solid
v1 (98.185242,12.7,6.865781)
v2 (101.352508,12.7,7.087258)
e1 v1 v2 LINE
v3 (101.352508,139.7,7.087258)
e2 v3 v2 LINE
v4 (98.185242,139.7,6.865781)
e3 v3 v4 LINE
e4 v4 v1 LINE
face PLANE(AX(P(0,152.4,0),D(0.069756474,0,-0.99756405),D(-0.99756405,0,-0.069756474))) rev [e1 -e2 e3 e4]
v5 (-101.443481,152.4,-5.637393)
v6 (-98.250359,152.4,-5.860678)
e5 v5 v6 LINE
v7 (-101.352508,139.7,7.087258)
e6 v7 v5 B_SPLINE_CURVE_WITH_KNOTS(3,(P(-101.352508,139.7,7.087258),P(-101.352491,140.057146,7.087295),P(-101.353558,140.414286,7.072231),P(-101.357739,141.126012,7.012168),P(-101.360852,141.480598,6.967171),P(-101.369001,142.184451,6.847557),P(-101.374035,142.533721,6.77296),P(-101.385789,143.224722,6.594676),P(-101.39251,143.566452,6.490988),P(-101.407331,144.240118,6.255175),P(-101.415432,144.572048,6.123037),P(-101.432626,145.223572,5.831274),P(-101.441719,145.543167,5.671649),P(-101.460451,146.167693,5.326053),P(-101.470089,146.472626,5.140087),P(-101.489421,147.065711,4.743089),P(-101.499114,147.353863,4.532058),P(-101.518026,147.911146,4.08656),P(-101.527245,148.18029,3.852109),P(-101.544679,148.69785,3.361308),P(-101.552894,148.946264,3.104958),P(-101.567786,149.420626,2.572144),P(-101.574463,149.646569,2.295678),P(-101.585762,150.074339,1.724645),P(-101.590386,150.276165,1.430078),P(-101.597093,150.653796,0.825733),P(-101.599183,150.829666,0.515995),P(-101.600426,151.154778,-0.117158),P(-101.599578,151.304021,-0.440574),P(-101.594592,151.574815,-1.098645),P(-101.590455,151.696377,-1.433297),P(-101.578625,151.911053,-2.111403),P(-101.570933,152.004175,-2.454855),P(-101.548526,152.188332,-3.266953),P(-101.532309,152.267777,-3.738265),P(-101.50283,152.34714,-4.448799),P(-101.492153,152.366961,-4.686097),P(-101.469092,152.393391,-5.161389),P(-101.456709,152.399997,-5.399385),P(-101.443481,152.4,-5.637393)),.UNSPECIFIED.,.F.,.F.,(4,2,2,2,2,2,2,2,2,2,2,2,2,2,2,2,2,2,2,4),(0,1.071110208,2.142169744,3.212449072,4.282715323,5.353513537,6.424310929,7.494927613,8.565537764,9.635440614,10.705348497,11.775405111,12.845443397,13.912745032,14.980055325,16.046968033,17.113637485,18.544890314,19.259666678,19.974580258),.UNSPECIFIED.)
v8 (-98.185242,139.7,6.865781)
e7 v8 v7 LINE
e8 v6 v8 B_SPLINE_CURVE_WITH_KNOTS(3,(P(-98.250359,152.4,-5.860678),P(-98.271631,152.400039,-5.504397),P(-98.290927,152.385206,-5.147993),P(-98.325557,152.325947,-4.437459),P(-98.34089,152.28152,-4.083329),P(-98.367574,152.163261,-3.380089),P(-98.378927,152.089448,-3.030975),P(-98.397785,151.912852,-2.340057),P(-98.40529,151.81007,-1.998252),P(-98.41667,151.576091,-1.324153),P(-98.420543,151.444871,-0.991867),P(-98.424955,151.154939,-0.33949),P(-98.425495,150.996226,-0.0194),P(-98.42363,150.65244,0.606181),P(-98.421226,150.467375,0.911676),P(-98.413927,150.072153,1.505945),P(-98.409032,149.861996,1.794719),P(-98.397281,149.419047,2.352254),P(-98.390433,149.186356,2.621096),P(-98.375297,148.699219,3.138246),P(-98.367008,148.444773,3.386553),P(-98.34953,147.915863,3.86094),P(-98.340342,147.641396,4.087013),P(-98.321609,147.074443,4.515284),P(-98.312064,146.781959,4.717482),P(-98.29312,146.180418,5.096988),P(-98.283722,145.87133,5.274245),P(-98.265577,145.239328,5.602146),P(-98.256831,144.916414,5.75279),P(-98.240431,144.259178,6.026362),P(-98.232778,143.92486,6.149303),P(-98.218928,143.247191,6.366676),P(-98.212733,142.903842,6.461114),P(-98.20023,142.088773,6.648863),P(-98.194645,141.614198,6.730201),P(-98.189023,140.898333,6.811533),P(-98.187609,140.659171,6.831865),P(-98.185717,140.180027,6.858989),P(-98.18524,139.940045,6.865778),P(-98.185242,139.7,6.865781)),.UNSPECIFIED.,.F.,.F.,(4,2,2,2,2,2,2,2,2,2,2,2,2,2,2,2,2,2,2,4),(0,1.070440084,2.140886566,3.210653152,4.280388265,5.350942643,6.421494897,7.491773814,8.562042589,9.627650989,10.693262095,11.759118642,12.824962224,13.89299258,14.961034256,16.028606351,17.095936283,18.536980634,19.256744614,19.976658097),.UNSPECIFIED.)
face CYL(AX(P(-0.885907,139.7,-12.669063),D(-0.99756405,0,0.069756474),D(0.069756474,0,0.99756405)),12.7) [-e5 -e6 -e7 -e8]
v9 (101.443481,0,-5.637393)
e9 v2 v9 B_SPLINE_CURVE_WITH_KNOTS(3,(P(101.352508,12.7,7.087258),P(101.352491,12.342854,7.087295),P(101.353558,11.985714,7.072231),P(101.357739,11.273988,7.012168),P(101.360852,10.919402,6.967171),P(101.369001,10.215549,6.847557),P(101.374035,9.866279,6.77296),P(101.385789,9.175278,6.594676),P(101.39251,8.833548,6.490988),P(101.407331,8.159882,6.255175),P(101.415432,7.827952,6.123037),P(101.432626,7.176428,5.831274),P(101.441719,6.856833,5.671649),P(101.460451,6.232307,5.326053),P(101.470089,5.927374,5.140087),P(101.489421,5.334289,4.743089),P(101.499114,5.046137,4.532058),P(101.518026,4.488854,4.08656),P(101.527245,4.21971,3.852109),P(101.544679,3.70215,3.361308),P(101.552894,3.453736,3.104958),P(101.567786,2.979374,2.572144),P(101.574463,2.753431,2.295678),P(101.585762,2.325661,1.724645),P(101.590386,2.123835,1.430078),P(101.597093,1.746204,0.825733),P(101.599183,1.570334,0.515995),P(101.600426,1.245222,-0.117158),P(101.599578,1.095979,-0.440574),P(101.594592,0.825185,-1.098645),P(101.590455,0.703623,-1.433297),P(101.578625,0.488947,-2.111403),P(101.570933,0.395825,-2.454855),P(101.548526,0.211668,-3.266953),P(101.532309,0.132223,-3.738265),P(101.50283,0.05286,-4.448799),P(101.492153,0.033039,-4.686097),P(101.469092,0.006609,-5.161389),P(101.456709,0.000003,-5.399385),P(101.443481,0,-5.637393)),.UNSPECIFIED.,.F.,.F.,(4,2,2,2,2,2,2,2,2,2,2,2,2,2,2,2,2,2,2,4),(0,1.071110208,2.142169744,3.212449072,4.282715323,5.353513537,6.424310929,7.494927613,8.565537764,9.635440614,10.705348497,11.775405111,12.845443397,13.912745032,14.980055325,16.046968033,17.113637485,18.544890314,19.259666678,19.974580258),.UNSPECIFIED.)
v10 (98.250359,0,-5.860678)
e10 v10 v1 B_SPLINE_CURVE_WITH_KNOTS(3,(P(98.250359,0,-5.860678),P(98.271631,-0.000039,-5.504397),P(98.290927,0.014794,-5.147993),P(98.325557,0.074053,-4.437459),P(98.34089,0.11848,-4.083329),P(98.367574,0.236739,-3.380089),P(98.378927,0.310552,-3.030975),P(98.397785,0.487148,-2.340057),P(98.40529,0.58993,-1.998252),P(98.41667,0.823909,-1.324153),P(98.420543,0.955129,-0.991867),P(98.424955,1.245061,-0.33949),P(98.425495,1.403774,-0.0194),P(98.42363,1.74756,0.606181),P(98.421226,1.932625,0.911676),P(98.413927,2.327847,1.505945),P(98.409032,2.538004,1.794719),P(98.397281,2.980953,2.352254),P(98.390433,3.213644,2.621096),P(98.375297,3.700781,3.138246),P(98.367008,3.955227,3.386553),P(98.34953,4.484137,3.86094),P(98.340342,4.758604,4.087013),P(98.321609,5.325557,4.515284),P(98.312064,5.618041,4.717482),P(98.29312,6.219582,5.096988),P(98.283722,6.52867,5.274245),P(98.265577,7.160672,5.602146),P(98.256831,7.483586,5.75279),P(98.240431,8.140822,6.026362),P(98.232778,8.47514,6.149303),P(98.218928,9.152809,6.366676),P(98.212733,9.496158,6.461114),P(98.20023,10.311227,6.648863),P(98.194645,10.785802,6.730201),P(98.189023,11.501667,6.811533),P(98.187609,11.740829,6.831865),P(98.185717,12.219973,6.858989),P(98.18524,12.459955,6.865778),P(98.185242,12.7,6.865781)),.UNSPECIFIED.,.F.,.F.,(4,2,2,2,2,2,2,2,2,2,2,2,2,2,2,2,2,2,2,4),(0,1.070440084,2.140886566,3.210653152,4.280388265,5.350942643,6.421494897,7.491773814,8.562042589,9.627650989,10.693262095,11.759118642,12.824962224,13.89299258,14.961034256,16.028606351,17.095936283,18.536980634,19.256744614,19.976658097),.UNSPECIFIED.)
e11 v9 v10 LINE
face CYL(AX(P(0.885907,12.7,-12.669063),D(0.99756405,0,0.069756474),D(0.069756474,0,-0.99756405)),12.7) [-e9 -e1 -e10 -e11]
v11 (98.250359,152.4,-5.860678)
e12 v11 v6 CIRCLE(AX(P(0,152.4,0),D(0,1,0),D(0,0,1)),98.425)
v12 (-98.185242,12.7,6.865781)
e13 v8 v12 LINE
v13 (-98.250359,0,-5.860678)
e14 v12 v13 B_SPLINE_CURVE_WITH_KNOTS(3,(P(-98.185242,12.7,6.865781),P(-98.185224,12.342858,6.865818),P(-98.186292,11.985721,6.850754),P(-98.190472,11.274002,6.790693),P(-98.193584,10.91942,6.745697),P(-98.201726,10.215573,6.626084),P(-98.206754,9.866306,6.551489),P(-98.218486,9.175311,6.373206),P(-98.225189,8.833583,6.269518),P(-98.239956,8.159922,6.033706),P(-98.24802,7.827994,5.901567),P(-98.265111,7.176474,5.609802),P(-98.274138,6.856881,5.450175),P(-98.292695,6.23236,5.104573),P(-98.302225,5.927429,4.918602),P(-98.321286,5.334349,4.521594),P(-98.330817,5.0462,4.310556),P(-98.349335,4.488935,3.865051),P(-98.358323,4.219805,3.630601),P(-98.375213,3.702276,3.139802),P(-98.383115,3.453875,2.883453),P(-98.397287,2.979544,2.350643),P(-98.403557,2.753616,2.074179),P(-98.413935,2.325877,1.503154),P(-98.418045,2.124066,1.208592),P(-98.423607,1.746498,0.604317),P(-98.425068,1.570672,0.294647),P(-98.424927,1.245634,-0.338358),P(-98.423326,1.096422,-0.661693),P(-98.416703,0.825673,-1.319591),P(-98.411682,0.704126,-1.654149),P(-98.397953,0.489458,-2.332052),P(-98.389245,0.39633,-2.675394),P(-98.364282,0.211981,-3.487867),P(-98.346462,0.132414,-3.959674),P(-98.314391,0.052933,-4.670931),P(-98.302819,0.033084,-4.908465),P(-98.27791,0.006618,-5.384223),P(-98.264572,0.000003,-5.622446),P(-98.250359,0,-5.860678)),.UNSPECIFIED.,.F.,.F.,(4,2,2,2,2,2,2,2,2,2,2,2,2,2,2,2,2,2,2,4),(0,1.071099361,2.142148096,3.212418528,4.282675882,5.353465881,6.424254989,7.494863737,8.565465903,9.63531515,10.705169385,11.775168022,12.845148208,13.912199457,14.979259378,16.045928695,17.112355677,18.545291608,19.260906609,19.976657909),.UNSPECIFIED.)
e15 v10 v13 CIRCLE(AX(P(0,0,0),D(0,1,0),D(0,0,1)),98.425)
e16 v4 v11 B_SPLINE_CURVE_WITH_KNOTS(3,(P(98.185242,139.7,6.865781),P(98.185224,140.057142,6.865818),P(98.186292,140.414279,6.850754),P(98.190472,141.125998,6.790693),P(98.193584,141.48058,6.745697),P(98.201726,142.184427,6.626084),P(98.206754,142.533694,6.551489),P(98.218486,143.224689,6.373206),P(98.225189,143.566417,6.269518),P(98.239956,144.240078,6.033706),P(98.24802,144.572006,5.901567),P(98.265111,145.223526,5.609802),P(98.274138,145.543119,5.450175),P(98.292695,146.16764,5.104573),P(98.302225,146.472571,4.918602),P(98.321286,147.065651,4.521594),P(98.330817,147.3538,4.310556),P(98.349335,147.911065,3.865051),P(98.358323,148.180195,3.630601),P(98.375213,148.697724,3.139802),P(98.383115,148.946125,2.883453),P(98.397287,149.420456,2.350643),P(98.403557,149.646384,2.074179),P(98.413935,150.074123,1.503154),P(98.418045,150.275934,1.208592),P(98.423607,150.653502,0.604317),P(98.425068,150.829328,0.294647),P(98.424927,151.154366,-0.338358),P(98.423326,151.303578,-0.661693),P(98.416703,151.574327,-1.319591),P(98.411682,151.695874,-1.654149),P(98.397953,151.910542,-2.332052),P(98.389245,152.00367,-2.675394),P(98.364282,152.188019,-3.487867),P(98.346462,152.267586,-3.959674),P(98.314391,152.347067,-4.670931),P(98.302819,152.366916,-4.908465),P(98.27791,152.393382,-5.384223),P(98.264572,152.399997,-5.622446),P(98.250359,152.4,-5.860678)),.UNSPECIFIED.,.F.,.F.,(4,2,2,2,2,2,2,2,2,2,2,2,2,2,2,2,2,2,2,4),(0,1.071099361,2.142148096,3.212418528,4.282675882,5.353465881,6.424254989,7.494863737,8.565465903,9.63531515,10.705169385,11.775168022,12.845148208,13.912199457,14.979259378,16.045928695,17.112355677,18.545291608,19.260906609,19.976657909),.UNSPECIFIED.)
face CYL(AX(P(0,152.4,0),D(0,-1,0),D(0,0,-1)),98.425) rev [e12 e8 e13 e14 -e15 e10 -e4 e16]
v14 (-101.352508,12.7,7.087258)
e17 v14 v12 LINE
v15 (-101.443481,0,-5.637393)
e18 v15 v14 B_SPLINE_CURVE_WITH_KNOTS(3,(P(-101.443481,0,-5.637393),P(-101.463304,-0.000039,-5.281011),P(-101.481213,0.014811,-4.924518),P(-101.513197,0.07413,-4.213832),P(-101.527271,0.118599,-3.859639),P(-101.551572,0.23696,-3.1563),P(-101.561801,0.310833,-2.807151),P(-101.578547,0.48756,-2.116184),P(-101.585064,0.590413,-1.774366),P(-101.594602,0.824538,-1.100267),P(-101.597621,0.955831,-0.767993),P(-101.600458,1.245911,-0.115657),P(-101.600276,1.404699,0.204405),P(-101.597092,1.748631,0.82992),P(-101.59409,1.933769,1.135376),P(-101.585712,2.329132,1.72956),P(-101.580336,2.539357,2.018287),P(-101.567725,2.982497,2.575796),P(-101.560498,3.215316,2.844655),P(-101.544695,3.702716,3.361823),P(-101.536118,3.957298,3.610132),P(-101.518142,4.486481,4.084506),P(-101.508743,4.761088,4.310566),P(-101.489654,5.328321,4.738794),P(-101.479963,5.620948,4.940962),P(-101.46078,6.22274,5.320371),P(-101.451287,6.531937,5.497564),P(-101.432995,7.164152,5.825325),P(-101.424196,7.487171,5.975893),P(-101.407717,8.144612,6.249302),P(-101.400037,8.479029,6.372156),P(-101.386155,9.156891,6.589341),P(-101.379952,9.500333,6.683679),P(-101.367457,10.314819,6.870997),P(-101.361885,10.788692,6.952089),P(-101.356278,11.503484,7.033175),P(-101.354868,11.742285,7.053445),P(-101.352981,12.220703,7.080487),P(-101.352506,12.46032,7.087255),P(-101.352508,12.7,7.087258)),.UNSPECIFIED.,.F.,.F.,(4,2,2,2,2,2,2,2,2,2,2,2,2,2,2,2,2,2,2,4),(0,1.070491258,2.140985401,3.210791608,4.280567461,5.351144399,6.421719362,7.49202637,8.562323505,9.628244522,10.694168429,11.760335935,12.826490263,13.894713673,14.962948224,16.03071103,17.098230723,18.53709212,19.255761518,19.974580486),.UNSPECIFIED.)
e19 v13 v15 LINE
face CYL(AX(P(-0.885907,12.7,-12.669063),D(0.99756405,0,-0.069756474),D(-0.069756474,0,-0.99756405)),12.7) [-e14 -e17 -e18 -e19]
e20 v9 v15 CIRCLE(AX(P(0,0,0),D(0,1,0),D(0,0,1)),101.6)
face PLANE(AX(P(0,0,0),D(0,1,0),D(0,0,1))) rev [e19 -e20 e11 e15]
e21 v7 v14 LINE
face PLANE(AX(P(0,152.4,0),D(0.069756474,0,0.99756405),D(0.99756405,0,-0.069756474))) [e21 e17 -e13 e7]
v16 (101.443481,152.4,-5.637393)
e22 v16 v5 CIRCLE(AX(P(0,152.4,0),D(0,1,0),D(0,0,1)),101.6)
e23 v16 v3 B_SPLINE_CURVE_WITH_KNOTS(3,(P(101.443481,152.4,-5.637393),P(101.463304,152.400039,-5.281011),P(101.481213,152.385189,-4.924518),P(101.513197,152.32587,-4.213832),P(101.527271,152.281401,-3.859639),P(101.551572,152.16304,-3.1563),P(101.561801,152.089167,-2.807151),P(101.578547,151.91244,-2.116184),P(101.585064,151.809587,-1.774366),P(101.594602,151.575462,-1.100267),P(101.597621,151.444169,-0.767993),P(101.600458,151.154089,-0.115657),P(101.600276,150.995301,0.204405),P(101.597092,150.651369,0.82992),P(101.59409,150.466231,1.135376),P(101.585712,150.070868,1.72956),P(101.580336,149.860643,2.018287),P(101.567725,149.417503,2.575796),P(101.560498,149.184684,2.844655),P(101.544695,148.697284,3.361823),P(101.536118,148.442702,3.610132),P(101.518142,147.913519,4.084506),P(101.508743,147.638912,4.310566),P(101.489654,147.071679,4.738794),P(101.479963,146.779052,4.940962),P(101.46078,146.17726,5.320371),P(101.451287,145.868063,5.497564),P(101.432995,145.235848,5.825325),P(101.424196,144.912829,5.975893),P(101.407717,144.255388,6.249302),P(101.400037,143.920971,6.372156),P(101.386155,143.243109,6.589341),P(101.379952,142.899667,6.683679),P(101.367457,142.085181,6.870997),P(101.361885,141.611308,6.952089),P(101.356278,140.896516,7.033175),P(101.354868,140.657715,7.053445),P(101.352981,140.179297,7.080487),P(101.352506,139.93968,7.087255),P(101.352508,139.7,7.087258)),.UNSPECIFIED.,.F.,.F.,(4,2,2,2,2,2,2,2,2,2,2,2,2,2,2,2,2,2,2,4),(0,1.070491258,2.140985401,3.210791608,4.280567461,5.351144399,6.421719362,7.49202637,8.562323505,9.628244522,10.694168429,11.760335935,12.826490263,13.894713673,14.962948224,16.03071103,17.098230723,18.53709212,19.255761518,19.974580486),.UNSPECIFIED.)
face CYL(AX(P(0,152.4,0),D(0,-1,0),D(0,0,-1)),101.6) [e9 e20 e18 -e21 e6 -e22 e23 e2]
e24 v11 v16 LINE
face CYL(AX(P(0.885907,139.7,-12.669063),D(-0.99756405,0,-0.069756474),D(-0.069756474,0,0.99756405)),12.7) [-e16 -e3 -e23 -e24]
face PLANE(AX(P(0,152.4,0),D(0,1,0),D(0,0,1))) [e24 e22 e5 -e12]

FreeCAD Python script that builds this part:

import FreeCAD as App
import Part
import Sketcher
from FreeCAD import Vector
Q = App.Units.Quantity


def edges_at(feature, points):
    """Names of the edges that pass closest to the given points."""
    edges = feature.Shape.Edges
    near = lambda p: min(range(len(edges)), key=lambda i: edges[i].distToShape(Part.Vertex(*p))[0])
    return sorted({f"Edge{near(p) + 1}" for p in points})

doc = App.newDocument("Part")
body = doc.addObject("PartDesign::Body", "Body")

# Sketch on XZ plane
sketch1 = body.newObject("Sketcher::SketchObject", "Sketch")
sketch1.AttachmentSupport = (doc.getObject("XZ_Plane"), [""])
sketch1.MapMode = "FlatFace"
sketch1.addGeometry(Part.Circle(Vector(0, 0, 0), Vector(0, 0, 1), 101.6), False)
sketch1.addGeometry(Part.Circle(Vector(0, 0, 0), Vector(0, 0, 1), 98.425), False)
sketch1.addConstraint(Sketcher.Constraint("Coincident", 0, 3, -1, 1))
sketch1.addConstraint(Sketcher.Constraint("Coincident", 1, 3, -1, 1))
sketch1.addConstraint(Sketcher.Constraint("Diameter", 0, Q("8 in")))
sketch1.addConstraint(Sketcher.Constraint("Diameter", 1, Q("7.75 in")))
pad1 = body.newObject("PartDesign::Pad", "Pad")
pad1.Profile = sketch1
pad1.Length = Q("6 in")
pad1.Reversed = True

# Sketch on XZ plane
sketch2 = body.newObject("Sketcher::SketchObject", "Sketch001")
sketch2.AttachmentSupport = (doc.getObject("XZ_Plane"), [""])
sketch2.MapMode = "FlatFace"
sketch2.addGeometry(Part.LineSegment(Vector(570.65257, 39.903915, 0), Vector(101.352508, 7.087258, 0)), False)
sketch2.addGeometry(Part.LineSegment(Vector(101.352508, 7.087258, 0), Vector(0, 0, 0)), False)
sketch2.addGeometry(Part.LineSegment(Vector(0, 0, 0), Vector(-101.352508, 7.087258, 0)), False)
sketch2.addGeometry(Part.LineSegment(Vector(-101.352508, 7.087258, 0), Vector(-570.65257, 39.903915, 0)), False)
sketch2.addGeometry(Part.LineSegment(Vector(-570.65257, 39.903915, 0), Vector(-570.65257, 980.796007, 0)), False)
sketch2.addGeometry(Part.LineSegment(Vector(-570.65257, 980.796007, 0), Vector(570.65257, 980.796007, 0)), False)
sketch2.addGeometry(Part.LineSegment(Vector(570.65257, 980.796007, 0), Vector(570.65257, 39.903915, 0)), False)
sketch2.addConstraint(Sketcher.Constraint("Coincident", 0, 2, 1, 1))
sketch2.addConstraint(Sketcher.Constraint("Coincident", 1, 2, 2, 1))
sketch2.addConstraint(Sketcher.Constraint("Coincident", 2, 2, 3, 1))
sketch2.addConstraint(Sketcher.Constraint("Coincident", 3, 2, 4, 1))
sketch2.addConstraint(Sketcher.Constraint("Coincident", 4, 2, 5, 1))
sketch2.addConstraint(Sketcher.Constraint("Coincident", 5, 2, 6, 1))
sketch2.addConstraint(Sketcher.Constraint("Coincident", 6, 2, 0, 1))
sketch2.addConstraint(Sketcher.Constraint("Vertical", 4))
sketch2.addConstraint(Sketcher.Constraint("Horizontal", 5))
sketch2.addConstraint(Sketcher.Constraint("Vertical", 6))
sketch2.addConstraint(Sketcher.Constraint("Coincident", 1, 2, -1, 1))
sketch2.addConstraint(Sketcher.Constraint("Symmetric", 0, 2, 2, 2, -2))
sketch2.addConstraint(Sketcher.Constraint("Symmetric", 3, 2, 6, 2, -2))
sketch2.addConstraint(Sketcher.Constraint("Parallel", 0, 1))
sketch2.addConstraint(Sketcher.Constraint("Distance", 1, Q("4 in")))
sketch2.addConstraint(Sketcher.Constraint("Angle", 0, Q("-176 deg")))
sketch2.addConstraint(Sketcher.Constraint("DistanceX", 5, 1, 5, 2, 1141.305141))
sketch2.addConstraint(Sketcher.Constraint("DistanceY", 4, 1, 4, 2, 940.892092))
pocket1 = body.newObject("PartDesign::Pocket", "Pocket")
pocket1.Profile = sketch2
pocket1.Length = Q("6 in")
doc.recompute()

fillet = body.newObject("PartDesign::Fillet", "Fillet")
fillet.Base = (pocket1, edges_at(pocket1, [
    (-99.769, 0, 6.977),
    (99.769, 152.4, 6.977),
    (-99.769, 152.4, 6.977),
    (99.769, 0, 6.977),
]))
fillet.Radius = Q("0.5 in")

doc.recompute()
